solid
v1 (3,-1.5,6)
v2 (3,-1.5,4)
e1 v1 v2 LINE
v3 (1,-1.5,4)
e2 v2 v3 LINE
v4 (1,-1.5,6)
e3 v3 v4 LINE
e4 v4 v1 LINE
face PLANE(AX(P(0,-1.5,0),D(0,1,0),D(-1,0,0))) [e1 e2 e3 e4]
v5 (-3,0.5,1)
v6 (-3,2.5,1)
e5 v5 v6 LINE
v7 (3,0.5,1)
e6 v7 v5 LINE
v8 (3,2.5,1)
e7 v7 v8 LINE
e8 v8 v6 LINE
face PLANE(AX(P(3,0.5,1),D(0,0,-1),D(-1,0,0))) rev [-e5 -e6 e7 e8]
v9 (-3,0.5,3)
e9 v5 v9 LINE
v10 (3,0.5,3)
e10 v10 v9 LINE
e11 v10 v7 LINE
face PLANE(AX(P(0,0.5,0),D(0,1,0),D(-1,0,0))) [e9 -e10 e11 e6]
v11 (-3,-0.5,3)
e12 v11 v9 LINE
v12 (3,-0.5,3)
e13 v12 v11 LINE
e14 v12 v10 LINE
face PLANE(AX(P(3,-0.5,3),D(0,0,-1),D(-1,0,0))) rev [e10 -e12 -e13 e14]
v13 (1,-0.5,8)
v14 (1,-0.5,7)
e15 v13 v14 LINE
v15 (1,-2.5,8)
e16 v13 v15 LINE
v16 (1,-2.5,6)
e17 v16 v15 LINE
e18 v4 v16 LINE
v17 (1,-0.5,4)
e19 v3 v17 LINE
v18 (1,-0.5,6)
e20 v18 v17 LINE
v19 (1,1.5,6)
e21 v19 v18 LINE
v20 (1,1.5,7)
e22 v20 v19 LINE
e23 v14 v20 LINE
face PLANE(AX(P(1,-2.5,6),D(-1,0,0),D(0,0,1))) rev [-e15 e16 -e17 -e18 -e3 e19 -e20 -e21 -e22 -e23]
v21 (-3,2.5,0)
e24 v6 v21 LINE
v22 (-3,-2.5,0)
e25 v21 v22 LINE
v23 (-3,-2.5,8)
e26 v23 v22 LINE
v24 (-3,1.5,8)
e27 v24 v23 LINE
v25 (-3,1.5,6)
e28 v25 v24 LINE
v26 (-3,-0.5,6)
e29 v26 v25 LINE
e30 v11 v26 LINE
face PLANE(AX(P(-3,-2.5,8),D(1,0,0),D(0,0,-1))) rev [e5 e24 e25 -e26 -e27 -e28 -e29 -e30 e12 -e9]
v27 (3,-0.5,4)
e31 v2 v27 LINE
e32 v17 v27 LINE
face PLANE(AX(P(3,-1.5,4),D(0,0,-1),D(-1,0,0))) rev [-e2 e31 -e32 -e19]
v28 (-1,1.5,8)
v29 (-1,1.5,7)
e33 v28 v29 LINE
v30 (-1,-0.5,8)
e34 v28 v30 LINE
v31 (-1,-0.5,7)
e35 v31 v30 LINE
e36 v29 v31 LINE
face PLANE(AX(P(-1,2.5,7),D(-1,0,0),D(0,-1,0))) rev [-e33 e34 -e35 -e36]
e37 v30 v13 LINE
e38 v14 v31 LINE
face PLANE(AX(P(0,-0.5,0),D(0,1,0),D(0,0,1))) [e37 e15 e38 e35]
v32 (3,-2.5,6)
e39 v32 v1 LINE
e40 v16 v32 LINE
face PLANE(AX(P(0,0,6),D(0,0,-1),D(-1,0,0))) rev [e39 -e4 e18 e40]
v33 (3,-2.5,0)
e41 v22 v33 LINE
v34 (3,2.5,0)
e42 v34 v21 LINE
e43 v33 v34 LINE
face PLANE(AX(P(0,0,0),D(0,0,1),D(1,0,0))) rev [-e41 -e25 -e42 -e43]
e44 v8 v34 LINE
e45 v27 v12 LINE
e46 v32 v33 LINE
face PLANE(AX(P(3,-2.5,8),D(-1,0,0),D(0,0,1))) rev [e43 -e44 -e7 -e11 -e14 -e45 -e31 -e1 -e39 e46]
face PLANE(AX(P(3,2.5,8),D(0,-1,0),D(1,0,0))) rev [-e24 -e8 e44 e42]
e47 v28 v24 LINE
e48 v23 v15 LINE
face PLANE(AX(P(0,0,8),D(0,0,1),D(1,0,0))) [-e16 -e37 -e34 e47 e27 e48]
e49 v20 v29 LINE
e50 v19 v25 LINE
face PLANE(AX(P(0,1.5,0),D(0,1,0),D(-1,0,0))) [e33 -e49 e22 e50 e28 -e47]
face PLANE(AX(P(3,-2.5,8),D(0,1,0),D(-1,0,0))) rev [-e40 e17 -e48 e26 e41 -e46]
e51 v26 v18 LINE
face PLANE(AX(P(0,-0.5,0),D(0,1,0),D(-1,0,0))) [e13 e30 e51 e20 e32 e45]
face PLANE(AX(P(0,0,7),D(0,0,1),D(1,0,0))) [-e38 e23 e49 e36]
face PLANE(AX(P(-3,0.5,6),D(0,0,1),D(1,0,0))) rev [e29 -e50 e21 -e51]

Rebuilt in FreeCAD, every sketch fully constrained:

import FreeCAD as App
import Part
import Sketcher
Q = App.Units.Quantity

doc = App.newDocument("Part")
params = doc.addObject("Spreadsheet::Sheet", "Params")
for row, (alias, value) in enumerate([
    ("sketch1_width", "6 mm"),
    ("sketch1_height", "5 mm"),
    ("pad1_length", "8 mm"),
    ("sketch2_width", "2 mm"),
    ("sketch2_height", "5 mm"),
    ("pocket1_length", "2 mm"),
    ("sketch3_width", "2 mm"),
    ("pocket2_length", "1 mm"),
    ("sketch4_width", "6 mm"),
    ("sketch4_height", "5 mm"),
    ("pocket3_length", "2 mm"),
    ("sketch5_width", "2 mm"),
    ("pocket4_length", "2 mm"),
    ("sketch6_width", "6 mm"),
    ("sketch6_width2", "4 mm"),
    ("sketch6_height", "1 mm"),
    ("pocket5_length", "1 mm"),
    ("pocket6_length", "1 mm"),
    ("sketch8_width", "2 mm"),
    ("sketch8_height", "1 mm"),
    ("pocket7_length", "1 mm"),
], start=1):
    params.set(f"A{row}", alias)
    params.set(f"B{row}", "=" + value)
    params.setAlias(f"B{row}", alias)

body = doc.addObject("PartDesign::Body", "Body")

sketch1 = doc.addObject("Sketcher::SketchObject", "Sketch")
body.addObject(sketch1)
sketch1.AttachmentSupport = (doc.XY_Plane, [""])
sketch1.MapMode = "FlatFace"
sketch1.addGeometry(Part.LineSegment(App.Vector(-3, 2, 0), App.Vector(-3, -2, 0)), False)
sketch1.addGeometry(Part.LineSegment(App.Vector(-3, -2, 0), App.Vector(3, -2, 0)), False)
sketch1.addGeometry(Part.LineSegment(App.Vector(3, -2, 0), App.Vector(3, 2, 0)), False)
sketch1.addGeometry(Part.LineSegment(App.Vector(3, 2, 0), App.Vector(-3, 2, 0)), False)
sketch1.addConstraint(Sketcher.Constraint("Coincident", 0, 2, 1, 1))
sketch1.addConstraint(Sketcher.Constraint("Coincident", 1, 2, 2, 1))
sketch1.addConstraint(Sketcher.Constraint("Coincident", 2, 2, 3, 1))
sketch1.addConstraint(Sketcher.Constraint("Coincident", 3, 2, 0, 1))
sketch1.addConstraint(Sketcher.Constraint("Vertical", 0))
sketch1.addConstraint(Sketcher.Constraint("Horizontal", 1))
sketch1.addConstraint(Sketcher.Constraint("Vertical", 2))
sketch1.addConstraint(Sketcher.Constraint("Horizontal", 3))
sketch1.addConstraint(Sketcher.Constraint("Symmetric", 0, 2, 2, 2, -1, 1))
sketch1.addConstraint(Sketcher.Constraint("DistanceX", 1, 1, 1, 2, Q("6 mm")))
sketch1.addConstraint(Sketcher.Constraint("DistanceY", 0, 2, 0, 1, Q("5 mm")))
sketch1.setExpression("Constraints[9]", "Params.sketch1_width")
sketch1.setExpression("Constraints[10]", "Params.sketch1_height")
pad1 = doc.addObject("PartDesign::Pad", "Pad")
body.addObject(pad1)
pad1.Profile = sketch1
pad1.setExpression("Length", "Params.pad1_length")

sketch2 = doc.addObject("Sketcher::SketchObject", "Sketch001")
body.addObject(sketch2)
sketch2.AttachmentSupport = (doc.XY_Plane, [""])
sketch2.MapMode = "FlatFace"
sketch2.AttachmentOffset = App.Placement(App.Vector(0, 0, 8), App.Rotation())
sketch2.addGeometry(Part.LineSegment(App.Vector(1, 2.5, 0), App.Vector(1, -2.5, 0)), False)
sketch2.addGeometry(Part.LineSegment(App.Vector(1, -2.5, 0), App.Vector(3, -2.5, 0)), False)
sketch2.addGeometry(Part.LineSegment(App.Vector(3, -2.5, 0), App.Vector(3, 2.5, 0)), False)
sketch2.addGeometry(Part.LineSegment(App.Vector(3, 2.5, 0), App.Vector(1, 2.5, 0)), False)
sketch2.addConstraint(Sketcher.Constraint("Coincident", 0, 2, 1, 1))
sketch2.addConstraint(Sketcher.Constraint("Coincident", 1, 2, 2, 1))
sketch2.addConstraint(Sketcher.Constraint("Coincident", 2, 2, 3, 1))
sketch2.addConstraint(Sketcher.Constraint("Coincident", 3, 2, 0, 1))
sketch2.addConstraint(Sketcher.Constraint("Vertical", 0))
sketch2.addConstraint(Sketcher.Constraint("Horizontal", 1))
sketch2.addConstraint(Sketcher.Constraint("Vertical", 2))
sketch2.addConstraint(Sketcher.Constraint("Horizontal", 3))
sketch2.addConstraint(Sketcher.Constraint("DistanceX", 1, 1, 1, 2, Q("2 mm")))
sketch2.addConstraint(Sketcher.Constraint("DistanceY", 0, 2, 0, 1, Q("5 mm")))
sketch2.addConstraint(Sketcher.Constraint("DistanceX", -1, 1, 0, 2, Q("1 mm")))
sketch2.addConstraint(Sketcher.Constraint("DistanceY", 0, 2, -1, 1, Q("2.5 mm")))
sketch2.setExpression("Constraints[8]", "Params.sketch2_width")
sketch2.setExpression("Constraints[9]", "Params.sketch2_height")
pocket1 = doc.addObject("PartDesign::Pocket", "Pocket")
body.addObject(pocket1)
pocket1.Profile = sketch2
pocket1.setExpression("Length", "Params.pocket1_length")

sketch3 = doc.addObject("Sketcher::SketchObject", "Sketch002")
body.addObject(sketch3)
sketch3.AttachmentSupport = (doc.XY_Plane, [""])
sketch3.MapMode = "FlatFace"
sketch3.AttachmentOffset = App.Placement(App.Vector(0, 0, 8), App.Rotation())
sketch3.addGeometry(Part.LineSegment(App.Vector(-1, 2.5, 0), App.Vector(-1, 0.5, 0)), False)
sketch3.addGeometry(Part.LineSegment(App.Vector(-1, 0.5, 0), App.Vector(1, 0.5, 0)), False)
sketch3.addGeometry(Part.LineSegment(App.Vector(1, 0.5, 0), App.Vector(1, 2.5, 0)), False)
sketch3.addGeometry(Part.LineSegment(App.Vector(1, 2.5, 0), App.Vector(-1, 2.5, 0)), False)
sketch3.addConstraint(Sketcher.Constraint("Coincident", 0, 2, 1, 1))
sketch3.addConstraint(Sketcher.Constraint("Coincident", 1, 2, 2, 1))
sketch3.addConstraint(Sketcher.Constraint("Coincident", 2, 2, 3, 1))
sketch3.addConstraint(Sketcher.Constraint("Coincident", 3, 2, 0, 1))
sketch3.addConstraint(Sketcher.Constraint("Vertical", 0))
sketch3.addConstraint(Sketcher.Constraint("Horizontal", 1))
sketch3.addConstraint(Sketcher.Constraint("Vertical", 2))
sketch3.addConstraint(Sketcher.Constraint("Horizontal", 3))
sketch3.addConstraint(Sketcher.Constraint("Equal", 3, 0))
sketch3.addConstraint(Sketcher.Constraint("DistanceX", 1, 1, 1, 2, Q("2 mm")))
sketch3.addConstraint(Sketcher.Constraint("DistanceX", 0, 2, -1, 1, Q("1 mm")))
sketch3.addConstraint(Sketcher.Constraint("DistanceY", -1, 1, 0, 2, Q("0.5 mm")))
sketch3.setExpression("Constraints[9]", "Params.sketch3_width")
pocket2 = doc.addObject("PartDesign::Pocket", "Pocket001")
body.addObject(pocket2)
pocket2.Profile = sketch3
pocket2.setExpression("Length", "Params.pocket2_length")

sketch4 = doc.addObject("Sketcher::SketchObject", "Sketch003")
body.addObject(sketch4)
sketch4.AttachmentSupport = (doc.XZ_Plane, [""])
sketch4.MapMode = "FlatFace"
sketch4.AttachmentOffset = App.Placement(App.Vector(0, 0, -2.5), App.Rotation())
sketch4.addGeometry(Part.LineSegment(App.Vector(-3, 1, 0), App.Vector(-3, 6, 0)), False)
sketch4.addGeometry(Part.LineSegment(App.Vector(-3, 6, 0), App.Vector(3, 6, 0)), False)
sketch4.addGeometry(Part.LineSegment(App.Vector(3, 6, 0), App.Vector(3, 1, 0)), False)
sketch4.addGeometry(Part.LineSegment(App.Vector(3, 1, 0), App.Vector(-3, 1, 0)), False)
sketch4.addConstraint(Sketcher.Constraint("Coincident", 0, 2, 1, 1))
sketch4.addConstraint(Sketcher.Constraint("Coincident", 1, 2, 2, 1))
sketch4.addConstraint(Sketcher.Constraint("Coincident", 2, 2, 3, 1))
sketch4.addConstraint(Sketcher.Constraint("Coincident", 3, 2, 0, 1))
sketch4.addConstraint(Sketcher.Constraint("Vertical", 0))
sketch4.addConstraint(Sketcher.Constraint("Horizontal", 1))
sketch4.addConstraint(Sketcher.Constraint("Vertical", 2))
sketch4.addConstraint(Sketcher.Constraint("Horizontal", 3))
sketch4.addConstraint(Sketcher.Constraint("DistanceX", 1, 1, 1, 2, Q("6 mm")))
sketch4.addConstraint(Sketcher.Constraint("DistanceY", 0, 1, 0, 2, Q("5 mm")))
sketch4.addConstraint(Sketcher.Constraint("DistanceX", 0, 2, -1, 1, Q("3 mm")))
sketch4.addConstraint(Sketcher.Constraint("DistanceY", -1, 1, 0, 2, Q("6 mm")))
sketch4.setExpression("Constraints[8]", "Params.sketch4_width")
sketch4.setExpression("Constraints[9]", "Params.sketch4_height")
pocket3 = doc.addObject("PartDesign::Pocket", "Pocket002")
body.addObject(pocket3)
pocket3.Profile = sketch4
pocket3.setExpression("Length", "Params.pocket3_length")
pocket3.Reversed = True

sketch5 = doc.addObject("Sketcher::SketchObject", "Sketch004")
body.addObject(sketch5)
sketch5.AttachmentSupport = (doc.XZ_Plane, [""])
sketch5.MapMode = "FlatFace"
sketch5.AttachmentOffset = App.Placement(App.Vector(0, 0, -0.5), App.Rotation())
sketch5.addGeometry(Part.LineSegment(App.Vector(1, 4, 0), App.Vector(1, 6, 0)), False)
sketch5.addGeometry(Part.LineSegment(App.Vector(1, 6, 0), App.Vector(3, 6, 0)), False)
sketch5.addGeometry(Part.LineSegment(App.Vector(3, 6, 0), App.Vector(3, 4, 0)), False)
sketch5.addGeometry(Part.LineSegment(App.Vector(3, 4, 0), App.Vector(1, 4, 0)), False)
sketch5.addConstraint(Sketcher.Constraint("Coincident", 0, 2, 1, 1))
sketch5.addConstraint(Sketcher.Constraint("Coincident", 1, 2, 2, 1))
sketch5.addConstraint(Sketcher.Constraint("Coincident", 2, 2, 3, 1))
sketch5.addConstraint(Sketcher.Constraint("Coincident", 3, 2, 0, 1))
sketch5.addConstraint(Sketcher.Constraint("Vertical", 0))
sketch5.addConstraint(Sketcher.Constraint("Horizontal", 1))
sketch5.addConstraint(Sketcher.Constraint("Vertical", 2))
sketch5.addConstraint(Sketcher.Constraint("Horizontal", 3))
sketch5.addConstraint(Sketcher.Constraint("Equal", 3, 0))
sketch5.addConstraint(Sketcher.Constraint("DistanceX", 1, 1, 1, 2, Q("2 mm")))
sketch5.addConstraint(Sketcher.Constraint("DistanceX", -1, 1, 0, 2, Q("1 mm")))
sketch5.addConstraint(Sketcher.Constraint("DistanceY", -1, 1, 0, 2, Q("6 mm")))
sketch5.setExpression("Constraints[9]", "Params.sketch5_width")
pocket4 = doc.addObject("PartDesign::Pocket", "Pocket003")
body.addObject(pocket4)
pocket4.Profile = sketch5
pocket4.setExpression("Length", "Params.pocket4_length")
pocket4.Reversed = True

sketch6 = doc.addObject("Sketcher::SketchObject", "Sketch005")
body.addObject(sketch6)
sketch6.AttachmentSupport = (doc.XZ_Plane, [""])
sketch6.MapMode = "FlatFace"
sketch6.AttachmentOffset = App.Placement(App.Vector(0, 0, -0.5), App.Rotation())
sketch6.addGeometry(Part.LineSegment(App.Vector(3, 4, 0), App.Vector(3, 3, 0)), False)
sketch6.addGeometry(Part.LineSegment(App.Vector(3, 3, 0), App.Vector(-3, 3, 0)), False)
sketch6.addGeometry(Part.LineSegment(App.Vector(-3, 3, 0), App.Vector(-3, 6, 0)), False)
sketch6.addGeometry(Part.LineSegment(App.Vector(-3, 6, 0), App.Vector(1, 6, 0)), False)
sketch6.addGeometry(Part.LineSegment(App.Vector(1, 6, 0), App.Vector(1, 4, 0)), False)
sketch6.addGeometry(Part.LineSegment(App.Vector(1, 4, 0), App.Vector(3, 4, 0)), False)
sketch6.addConstraint(Sketcher.Constraint("Coincident", 0, 2, 1, 1))
sketch6.addConstraint(Sketcher.Constraint("Coincident", 1, 2, 2, 1))
sketch6.addConstraint(Sketcher.Constraint("Coincident", 2, 2, 3, 1))
sketch6.addConstraint(Sketcher.Constraint("Coincident", 3, 2, 4, 1))
sketch6.addConstraint(Sketcher.Constraint("Coincident", 4, 2, 5, 1))
sketch6.addConstraint(Sketcher.Constraint("Coincident", 5, 2, 0, 1))
sketch6.addConstraint(Sketcher.Constraint("Vertical", 0))
sketch6.addConstraint(Sketcher.Constraint("Horizontal", 1))
sketch6.addConstraint(Sketcher.Constraint("Vertical", 2))
sketch6.addConstraint(Sketcher.Constraint("Horizontal", 3))
sketch6.addConstraint(Sketcher.Constraint("Vertical", 4))
sketch6.addConstraint(Sketcher.Constraint("Horizontal", 5))
sketch6.addConstraint(Sketcher.Constraint("Equal", 5, 4))
sketch6.addConstraint(Sketcher.Constraint("DistanceX", 1, 2, 1, 1, Q("6 mm")))
sketch6.addConstraint(Sketcher.Constraint("DistanceX", 3, 1, 3, 2, Q("4 mm")))
sketch6.addConstraint(Sketcher.Constraint("DistanceY", 0, 2, 0, 1, Q("1 mm")))
sketch6.addConstraint(Sketcher.Constraint("DistanceX", -1, 1, 0, 2, Q("3 mm")))
sketch6.addConstraint(Sketcher.Constraint("DistanceY", -1, 1, 0, 2, Q("3 mm")))
sketch6.setExpression("Constraints[13]", "Params.sketch6_width")
sketch6.setExpression("Constraints[14]", "Params.sketch6_width2")
sketch6.setExpression("Constraints[15]", "Params.sketch6_height")
pocket5 = doc.addObject("PartDesign::Pocket", "Pocket004")
body.addObject(pocket5)
pocket5.Profile = sketch6
pocket5.setExpression("Length", "Params.pocket5_length")
pocket5.Reversed = True

sketch7 = doc.addObject("Sketcher::SketchObject", "Sketch006")
body.addObject(sketch7)
sketch7.AttachmentSupport = (doc.XZ_Plane, [""])
sketch7.MapMode = "FlatFace"
sketch7.AttachmentOffset = App.Placement(App.Vector(0, 0, -2.5), App.Rotation())
sketch7.addGeometry(Part.LineSegment(App.Vector(-5.2, 5.7, 0), App.Vector(-5.2, 9.2, 0)), False)
sketch7.addGeometry(Part.LineSegment(App.Vector(-5.2, 9.2, 0), App.Vector(3.4, 9.2, 0)), False)
sketch7.addGeometry(Part.LineSegment(App.Vector(3.4, 9.2, 0), App.Vector(3.4, 5.7, 0)), False)
sketch7.addGeometry(Part.LineSegment(App.Vector(3.4, 5.7, 0), App.Vector(-5.2, 5.7, 0)), False)
sketch7.addConstraint(Sketcher.Constraint("Coincident", 0, 2, 1, 1))
sketch7.addConstraint(Sketcher.Constraint("Coincident", 1, 2, 2, 1))
sketch7.addConstraint(Sketcher.Constraint("Coincident", 2, 2, 3, 1))
sketch7.addConstraint(Sketcher.Constraint("Coincident", 3, 2, 0, 1))
sketch7.addConstraint(Sketcher.Constraint("Vertical", 0))
sketch7.addConstraint(Sketcher.Constraint("Horizontal", 1))
sketch7.addConstraint(Sketcher.Constraint("Vertical", 2))
sketch7.addConstraint(Sketcher.Constraint("Horizontal", 3))
sketch7.addConstraint(Sketcher.Constraint("DistanceY", 0, 1, 0, 2, Q("3.487061 mm")))
sketch7.addConstraint(Sketcher.Constraint("DistanceX", 1, 1, 1, 2, Q("8.535403 mm")))
sketch7.addConstraint(Sketcher.Constraint("DistanceX", -1, 1, 1, 2, Q("3.38188 mm")))
sketch7.addConstraint(Sketcher.Constraint("DistanceY", -1, 1, 0, 2, Q("9.192057 mm")))
pocket6 = doc.addObject("PartDesign::Pocket", "Pocket005")
body.addObject(pocket6)
pocket6.Profile = sketch7
pocket6.setExpression("Length", "Params.pocket6_length")
pocket6.Reversed = True

sketch8 = doc.addObject("Sketcher::SketchObject", "Sketch007")
body.addObject(sketch8)
sketch8.AttachmentSupport = (doc.XZ_Plane, [""])
sketch8.MapMode = "FlatFace"
sketch8.AttachmentOffset = App.Placement(App.Vector(0, 0, -0.5), App.Rotation())
sketch8.addGeometry(Part.LineSegment(App.Vector(-1, 7, 0), App.Vector(-1, 8, 0)), False)
sketch8.addGeometry(Part.LineSegment(App.Vector(-1, 8, 0), App.Vector(1, 8, 0)), False)
sketch8.addGeometry(Part.LineSegment(App.Vector(1, 8, 0), App.Vector(1, 7, 0)), False)
sketch8.addGeometry(Part.LineSegment(App.Vector(1, 7, 0), App.Vector(-1, 7, 0)), False)
sketch8.addConstraint(Sketcher.Constraint("Coincident", 0, 2, 1, 1))
sketch8.addConstraint(Sketcher.Constraint("Coincident", 1, 2, 2, 1))
sketch8.addConstraint(Sketcher.Constraint("Coincident", 2, 2, 3, 1))
sketch8.addConstraint(Sketcher.Constraint("Coincident", 3, 2, 0, 1))
sketch8.addConstraint(Sketcher.Constraint("Vertical", 0))
sketch8.addConstraint(Sketcher.Constraint("Horizontal", 1))
sketch8.addConstraint(Sketcher.Constraint("Vertical", 2))
sketch8.addConstraint(Sketcher.Constraint("Horizontal", 3))
sketch8.addConstraint(Sketcher.Constraint("DistanceX", 1, 1, 1, 2, Q("2 mm")))
sketch8.addConstraint(Sketcher.Constraint("DistanceY", 0, 1, 0, 2, Q("1 mm")))
sketch8.addConstraint(Sketcher.Constraint("DistanceX", 0, 2, -1, 1, Q("1 mm")))
sketch8.addConstraint(Sketcher.Constraint("DistanceY", -1, 1, 0, 2, Q("8 mm")))
sketch8.setExpression("Constraints[8]", "Params.sketch8_width")
sketch8.setExpression("Constraints[9]", "Params.sketch8_height")
pocket7 = doc.addObject("PartDesign::Pocket", "Pocket006")
body.addObject(pocket7)
pocket7.Profile = sketch8
pocket7.setExpression("Length", "Params.pocket7_length")
pocket7.Reversed = True

doc.recompute()
